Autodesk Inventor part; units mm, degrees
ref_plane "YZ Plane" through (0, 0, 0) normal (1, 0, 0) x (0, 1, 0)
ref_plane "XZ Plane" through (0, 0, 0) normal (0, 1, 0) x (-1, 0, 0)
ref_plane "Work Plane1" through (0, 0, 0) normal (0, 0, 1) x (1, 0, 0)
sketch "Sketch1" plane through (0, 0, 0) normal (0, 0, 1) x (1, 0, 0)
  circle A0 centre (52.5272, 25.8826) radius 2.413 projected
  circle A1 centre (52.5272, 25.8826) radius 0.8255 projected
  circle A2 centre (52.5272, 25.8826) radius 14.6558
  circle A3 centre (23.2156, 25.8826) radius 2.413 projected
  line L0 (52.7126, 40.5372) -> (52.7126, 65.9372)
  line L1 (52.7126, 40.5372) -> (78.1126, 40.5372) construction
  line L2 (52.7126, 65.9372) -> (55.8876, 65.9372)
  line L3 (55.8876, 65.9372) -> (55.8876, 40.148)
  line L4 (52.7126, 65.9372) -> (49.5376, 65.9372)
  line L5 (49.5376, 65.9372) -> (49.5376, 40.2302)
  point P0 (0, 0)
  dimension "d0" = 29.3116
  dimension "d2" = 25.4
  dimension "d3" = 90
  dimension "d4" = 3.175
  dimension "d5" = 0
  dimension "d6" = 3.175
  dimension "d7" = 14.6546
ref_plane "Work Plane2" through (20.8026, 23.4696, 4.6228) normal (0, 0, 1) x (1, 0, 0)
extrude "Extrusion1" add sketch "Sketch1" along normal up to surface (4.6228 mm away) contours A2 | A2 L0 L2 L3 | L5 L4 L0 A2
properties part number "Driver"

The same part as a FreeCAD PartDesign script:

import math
import FreeCAD as App
import Part
import Sketcher

V = App.Vector
Q = App.Units.Quantity

doc = App.newDocument("Part")
body = doc.addObject("PartDesign::Body", "Body")

sketch1 = body.newObject("Sketcher::SketchObject", "Sketch")
sketch1.AttachmentSupport = (doc.getObject("XY_Plane"), [""])
sketch1.MapMode = "FlatFace"
sketch1.addGeometry([
    Part.ArcOfCircle(Part.Circle(V(52.5, 25.9, 0), V(0, 0, 1), 14.7), math.radians(102), math.radians(437)),
    Part.LineSegment(V(55.9, 40.1, 0), V(55.9, 65.9, 0)),
    Part.LineSegment(V(55.9, 65.9, 0), V(49.5, 65.9, 0)),
    Part.LineSegment(V(49.5, 65.9, 0), V(49.5, 40.2, 0)),
    Part.Circle(V(52.5, 25.9, 0), V(0, 0, 1), 2.4),
], False)
sketch1.addConstraint([
    Sketcher.Constraint("Coincident", 0, 2, 1, 1),
    Sketcher.Constraint("Coincident", 1, 2, 2, 1),
    Sketcher.Constraint("Coincident", 2, 2, 3, 1),
    Sketcher.Constraint("Coincident", 3, 2, 0, 1),
    Sketcher.Constraint("Vertical", 1),
    Sketcher.Constraint("Horizontal", 2),
    Sketcher.Constraint("Vertical", 3),
    Sketcher.Constraint("Coincident", 4, 3, 0, 3),
    Sketcher.Constraint("Radius", 0, Q("0.577 in")),
    Sketcher.Constraint("Diameter", 4, Q("0.19 in")),
    Sketcher.Constraint("DistanceX", 2, 2, 2, 1, Q("0.25 in")),
    Sketcher.Constraint("DistanceX", -1, 1, 0, 3, Q("2.068 in")),
    Sketcher.Constraint("DistanceY", -1, 1, 0, 3, Q("1.019 in")),
    Sketcher.Constraint("DistanceY", 1, 1, 1, 2, 25.7892),
    Sketcher.Constraint("DistanceY", 3, 2, 3, 1, 25.707),
])
pad1 = body.newObject("PartDesign::Pad", "Pad")
pad1.Profile = sketch1
pad1.Length = Q("0.182 in")

doc.recompute()
